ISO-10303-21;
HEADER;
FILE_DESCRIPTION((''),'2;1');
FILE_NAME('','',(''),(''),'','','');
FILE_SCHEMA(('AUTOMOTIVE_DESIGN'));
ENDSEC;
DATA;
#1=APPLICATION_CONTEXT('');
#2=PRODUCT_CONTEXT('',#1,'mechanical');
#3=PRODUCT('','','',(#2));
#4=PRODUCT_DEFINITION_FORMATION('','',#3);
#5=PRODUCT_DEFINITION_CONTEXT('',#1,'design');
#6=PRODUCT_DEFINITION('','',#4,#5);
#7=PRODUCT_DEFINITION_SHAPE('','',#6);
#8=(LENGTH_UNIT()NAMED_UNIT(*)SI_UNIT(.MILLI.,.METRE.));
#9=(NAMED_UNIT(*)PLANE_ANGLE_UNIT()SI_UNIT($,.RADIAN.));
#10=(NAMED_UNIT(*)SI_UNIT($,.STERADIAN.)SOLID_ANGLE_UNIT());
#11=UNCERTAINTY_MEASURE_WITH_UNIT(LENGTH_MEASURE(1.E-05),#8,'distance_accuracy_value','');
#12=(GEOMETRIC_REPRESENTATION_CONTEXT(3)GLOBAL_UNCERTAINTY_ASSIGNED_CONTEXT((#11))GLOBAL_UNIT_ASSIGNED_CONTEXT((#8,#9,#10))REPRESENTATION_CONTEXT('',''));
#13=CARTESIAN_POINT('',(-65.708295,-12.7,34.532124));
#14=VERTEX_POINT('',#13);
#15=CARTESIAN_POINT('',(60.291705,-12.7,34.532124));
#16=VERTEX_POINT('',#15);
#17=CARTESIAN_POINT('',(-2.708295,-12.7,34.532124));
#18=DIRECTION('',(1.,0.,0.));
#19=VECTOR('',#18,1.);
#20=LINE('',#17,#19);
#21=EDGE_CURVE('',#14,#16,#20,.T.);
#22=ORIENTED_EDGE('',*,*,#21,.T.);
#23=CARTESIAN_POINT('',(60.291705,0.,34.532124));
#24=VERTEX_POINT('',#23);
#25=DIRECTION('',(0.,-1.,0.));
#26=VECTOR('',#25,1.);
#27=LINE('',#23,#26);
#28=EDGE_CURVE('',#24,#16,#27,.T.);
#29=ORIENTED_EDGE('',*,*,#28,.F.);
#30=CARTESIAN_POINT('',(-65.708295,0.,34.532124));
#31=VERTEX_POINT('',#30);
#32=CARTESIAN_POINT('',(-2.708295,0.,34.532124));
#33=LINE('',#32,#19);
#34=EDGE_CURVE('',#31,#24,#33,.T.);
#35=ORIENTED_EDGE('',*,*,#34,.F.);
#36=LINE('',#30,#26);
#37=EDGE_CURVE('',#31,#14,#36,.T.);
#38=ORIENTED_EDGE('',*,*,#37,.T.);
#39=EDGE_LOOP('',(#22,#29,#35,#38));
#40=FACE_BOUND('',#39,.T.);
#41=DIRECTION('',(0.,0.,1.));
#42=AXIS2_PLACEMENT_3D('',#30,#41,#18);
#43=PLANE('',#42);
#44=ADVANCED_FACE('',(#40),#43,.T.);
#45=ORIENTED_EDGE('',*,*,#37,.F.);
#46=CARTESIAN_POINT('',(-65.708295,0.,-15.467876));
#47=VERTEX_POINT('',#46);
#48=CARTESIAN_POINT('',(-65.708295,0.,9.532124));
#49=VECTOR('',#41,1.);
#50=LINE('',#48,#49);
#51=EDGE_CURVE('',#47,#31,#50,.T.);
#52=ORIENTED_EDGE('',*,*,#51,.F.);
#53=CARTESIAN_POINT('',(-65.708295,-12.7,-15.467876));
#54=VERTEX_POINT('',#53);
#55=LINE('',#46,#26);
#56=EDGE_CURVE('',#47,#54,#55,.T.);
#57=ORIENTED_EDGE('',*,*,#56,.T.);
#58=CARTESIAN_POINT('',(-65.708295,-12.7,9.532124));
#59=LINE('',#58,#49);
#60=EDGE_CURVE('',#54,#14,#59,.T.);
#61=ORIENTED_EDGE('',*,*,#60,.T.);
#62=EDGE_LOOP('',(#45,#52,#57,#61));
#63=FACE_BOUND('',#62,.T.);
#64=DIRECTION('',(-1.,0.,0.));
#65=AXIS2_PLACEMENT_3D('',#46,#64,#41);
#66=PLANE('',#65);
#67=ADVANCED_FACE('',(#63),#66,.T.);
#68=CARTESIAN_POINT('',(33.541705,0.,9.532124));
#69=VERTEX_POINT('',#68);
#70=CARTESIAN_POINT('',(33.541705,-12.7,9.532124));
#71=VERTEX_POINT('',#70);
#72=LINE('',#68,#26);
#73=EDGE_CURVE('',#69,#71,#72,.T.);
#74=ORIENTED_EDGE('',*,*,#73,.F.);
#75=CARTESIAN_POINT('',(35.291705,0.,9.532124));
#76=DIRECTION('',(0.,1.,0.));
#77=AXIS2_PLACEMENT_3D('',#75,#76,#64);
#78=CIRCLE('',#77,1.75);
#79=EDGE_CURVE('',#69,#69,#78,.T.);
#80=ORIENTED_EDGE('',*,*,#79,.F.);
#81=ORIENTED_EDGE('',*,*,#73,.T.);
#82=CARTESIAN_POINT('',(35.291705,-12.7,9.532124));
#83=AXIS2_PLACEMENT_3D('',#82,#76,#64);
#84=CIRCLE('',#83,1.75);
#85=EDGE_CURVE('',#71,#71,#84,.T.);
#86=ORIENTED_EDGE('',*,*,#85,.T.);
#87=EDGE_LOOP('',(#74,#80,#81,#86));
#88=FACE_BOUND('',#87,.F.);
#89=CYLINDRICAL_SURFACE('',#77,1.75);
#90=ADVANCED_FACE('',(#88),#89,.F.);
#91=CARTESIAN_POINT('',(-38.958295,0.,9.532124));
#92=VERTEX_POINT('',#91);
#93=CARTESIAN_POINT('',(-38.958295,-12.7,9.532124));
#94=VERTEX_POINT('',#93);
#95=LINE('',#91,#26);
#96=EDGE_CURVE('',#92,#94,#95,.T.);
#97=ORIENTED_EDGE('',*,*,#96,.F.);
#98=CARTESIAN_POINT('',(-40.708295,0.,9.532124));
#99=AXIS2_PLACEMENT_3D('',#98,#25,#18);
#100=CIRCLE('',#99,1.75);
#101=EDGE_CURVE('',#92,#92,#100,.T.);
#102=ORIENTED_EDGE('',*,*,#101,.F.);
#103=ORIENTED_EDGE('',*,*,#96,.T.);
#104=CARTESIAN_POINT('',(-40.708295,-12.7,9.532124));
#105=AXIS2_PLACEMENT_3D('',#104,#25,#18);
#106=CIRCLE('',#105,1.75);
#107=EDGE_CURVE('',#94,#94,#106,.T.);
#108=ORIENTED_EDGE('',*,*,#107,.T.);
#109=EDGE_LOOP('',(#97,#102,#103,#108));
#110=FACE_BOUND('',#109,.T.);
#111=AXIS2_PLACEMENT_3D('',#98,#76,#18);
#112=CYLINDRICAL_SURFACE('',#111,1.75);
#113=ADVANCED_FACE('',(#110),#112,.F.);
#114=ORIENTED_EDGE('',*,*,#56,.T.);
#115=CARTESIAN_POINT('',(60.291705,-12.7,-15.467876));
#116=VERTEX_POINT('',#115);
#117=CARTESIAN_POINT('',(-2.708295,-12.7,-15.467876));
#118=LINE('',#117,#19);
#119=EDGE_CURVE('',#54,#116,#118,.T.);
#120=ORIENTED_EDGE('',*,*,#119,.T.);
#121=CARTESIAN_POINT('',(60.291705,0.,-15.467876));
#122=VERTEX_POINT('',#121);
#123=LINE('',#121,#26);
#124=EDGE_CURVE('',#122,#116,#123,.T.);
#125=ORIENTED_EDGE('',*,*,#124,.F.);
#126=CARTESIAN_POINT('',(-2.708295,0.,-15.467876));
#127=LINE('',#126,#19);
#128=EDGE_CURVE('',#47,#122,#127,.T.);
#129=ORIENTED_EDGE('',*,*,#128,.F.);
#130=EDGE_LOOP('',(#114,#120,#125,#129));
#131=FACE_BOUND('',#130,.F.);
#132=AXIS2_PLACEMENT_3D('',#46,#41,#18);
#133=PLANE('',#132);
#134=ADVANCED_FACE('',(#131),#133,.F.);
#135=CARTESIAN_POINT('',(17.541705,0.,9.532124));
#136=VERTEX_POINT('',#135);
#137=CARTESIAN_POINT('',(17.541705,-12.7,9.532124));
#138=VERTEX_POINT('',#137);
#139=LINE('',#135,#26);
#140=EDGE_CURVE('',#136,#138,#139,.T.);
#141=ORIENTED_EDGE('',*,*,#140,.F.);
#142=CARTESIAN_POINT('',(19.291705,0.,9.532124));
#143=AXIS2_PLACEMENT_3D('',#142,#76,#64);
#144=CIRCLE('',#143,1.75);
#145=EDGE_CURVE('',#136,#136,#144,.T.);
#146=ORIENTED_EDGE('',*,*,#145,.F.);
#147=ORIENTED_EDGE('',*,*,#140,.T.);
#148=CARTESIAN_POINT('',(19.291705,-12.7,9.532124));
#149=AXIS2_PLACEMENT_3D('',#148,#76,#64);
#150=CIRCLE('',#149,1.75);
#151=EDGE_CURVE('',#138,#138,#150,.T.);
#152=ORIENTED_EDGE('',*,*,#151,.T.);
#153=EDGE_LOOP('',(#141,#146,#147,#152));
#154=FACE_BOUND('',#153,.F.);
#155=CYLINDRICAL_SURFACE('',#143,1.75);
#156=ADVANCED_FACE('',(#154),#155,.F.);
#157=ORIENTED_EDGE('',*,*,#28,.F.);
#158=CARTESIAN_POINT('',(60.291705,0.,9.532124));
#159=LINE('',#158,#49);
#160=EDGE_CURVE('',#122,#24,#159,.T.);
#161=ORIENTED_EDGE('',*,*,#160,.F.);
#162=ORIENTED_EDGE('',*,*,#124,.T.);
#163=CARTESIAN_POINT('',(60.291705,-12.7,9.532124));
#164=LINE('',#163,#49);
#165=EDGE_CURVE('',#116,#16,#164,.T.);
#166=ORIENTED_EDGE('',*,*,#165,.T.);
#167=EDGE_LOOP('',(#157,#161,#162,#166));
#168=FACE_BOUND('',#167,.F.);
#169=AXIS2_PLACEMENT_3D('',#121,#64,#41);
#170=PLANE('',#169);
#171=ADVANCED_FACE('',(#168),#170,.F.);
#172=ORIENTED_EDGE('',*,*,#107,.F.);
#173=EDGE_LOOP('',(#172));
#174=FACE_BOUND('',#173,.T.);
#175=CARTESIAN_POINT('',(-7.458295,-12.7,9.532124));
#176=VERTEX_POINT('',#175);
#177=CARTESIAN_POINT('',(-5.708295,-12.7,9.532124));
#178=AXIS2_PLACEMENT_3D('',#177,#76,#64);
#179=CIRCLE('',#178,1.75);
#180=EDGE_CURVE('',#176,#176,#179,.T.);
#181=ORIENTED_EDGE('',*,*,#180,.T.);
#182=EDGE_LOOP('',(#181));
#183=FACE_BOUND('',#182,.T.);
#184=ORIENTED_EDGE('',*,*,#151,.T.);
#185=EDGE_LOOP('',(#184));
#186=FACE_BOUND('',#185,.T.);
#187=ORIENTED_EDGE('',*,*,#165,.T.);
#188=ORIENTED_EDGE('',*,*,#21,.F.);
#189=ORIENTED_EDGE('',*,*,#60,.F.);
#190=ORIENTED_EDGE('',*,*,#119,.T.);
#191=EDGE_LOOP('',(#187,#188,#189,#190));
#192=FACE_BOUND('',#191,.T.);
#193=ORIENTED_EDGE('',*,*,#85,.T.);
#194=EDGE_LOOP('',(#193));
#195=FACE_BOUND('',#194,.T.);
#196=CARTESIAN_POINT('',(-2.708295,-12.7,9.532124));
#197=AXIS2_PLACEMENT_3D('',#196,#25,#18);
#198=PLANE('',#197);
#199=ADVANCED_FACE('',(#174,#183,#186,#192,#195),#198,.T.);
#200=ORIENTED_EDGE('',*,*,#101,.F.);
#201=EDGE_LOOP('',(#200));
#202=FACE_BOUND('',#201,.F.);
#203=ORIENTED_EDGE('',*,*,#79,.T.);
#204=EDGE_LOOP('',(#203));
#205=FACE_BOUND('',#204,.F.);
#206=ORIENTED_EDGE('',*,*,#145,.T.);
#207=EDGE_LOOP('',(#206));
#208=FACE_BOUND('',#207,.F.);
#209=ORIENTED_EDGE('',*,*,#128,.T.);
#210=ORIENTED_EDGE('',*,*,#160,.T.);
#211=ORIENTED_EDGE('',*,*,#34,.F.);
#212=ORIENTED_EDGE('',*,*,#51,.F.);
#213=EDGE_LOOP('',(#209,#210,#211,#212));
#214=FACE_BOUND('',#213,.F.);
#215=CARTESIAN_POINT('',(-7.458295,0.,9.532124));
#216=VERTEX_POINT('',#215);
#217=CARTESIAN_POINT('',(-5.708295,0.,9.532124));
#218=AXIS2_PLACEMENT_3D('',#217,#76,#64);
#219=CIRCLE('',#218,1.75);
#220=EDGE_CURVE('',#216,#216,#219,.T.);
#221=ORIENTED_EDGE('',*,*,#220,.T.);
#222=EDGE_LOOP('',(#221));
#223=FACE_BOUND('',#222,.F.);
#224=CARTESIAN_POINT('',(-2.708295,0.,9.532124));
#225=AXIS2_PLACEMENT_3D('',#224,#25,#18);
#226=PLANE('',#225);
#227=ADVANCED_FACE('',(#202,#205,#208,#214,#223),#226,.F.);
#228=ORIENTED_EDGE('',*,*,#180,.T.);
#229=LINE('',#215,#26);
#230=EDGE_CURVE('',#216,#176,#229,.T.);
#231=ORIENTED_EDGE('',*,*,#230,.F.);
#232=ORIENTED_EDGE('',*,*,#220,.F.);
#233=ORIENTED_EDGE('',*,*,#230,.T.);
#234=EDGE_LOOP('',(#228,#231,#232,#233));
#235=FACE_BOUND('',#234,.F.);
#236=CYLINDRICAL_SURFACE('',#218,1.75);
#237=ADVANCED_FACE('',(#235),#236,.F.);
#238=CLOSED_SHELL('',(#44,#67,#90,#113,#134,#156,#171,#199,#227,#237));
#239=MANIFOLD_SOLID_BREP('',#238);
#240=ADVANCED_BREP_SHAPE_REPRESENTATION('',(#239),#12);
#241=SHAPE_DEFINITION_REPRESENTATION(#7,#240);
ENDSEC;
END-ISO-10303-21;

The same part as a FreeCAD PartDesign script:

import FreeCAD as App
import Part
import Sketcher

V = App.Vector


def add_polygon(sketch, points):
    """Adds a closed chain of lines whose ends are joined by coincident constraints."""
    first, n = sketch.GeometryCount, len(points)
    for a, b in zip(points, points[1:] + points[:1]):
        sketch.addGeometry(Part.LineSegment(App.Vector(*a, 0), App.Vector(*b, 0)), False)
    for i in range(n):
        sketch.addConstraint(Sketcher.Constraint("Coincident", first + i, 2, first + (i + 1) % n, 1))

doc = App.newDocument("Part")
body = doc.addObject("PartDesign::Body", "Body")

sketch1 = body.newObject("Sketcher::SketchObject", "Sketch")
sketch1.AttachmentSupport = (doc.getObject("XZ_Plane"), [""])
sketch1.MapMode = "FlatFace"
add_polygon(sketch1, [(-65.708295, 34.532124), (-65.708295, -15.467876), (60.291705, -15.467876), (60.291705, 34.532124)])
sketch1.addGeometry(Part.Circle(V(-40.708295, 9.532124, 0), V(0, 0, 1), 1.75), False)
sketch1.addGeometry(Part.Circle(V(-5.708295, 9.532124, 0), V(0, 0, 1), 1.75), False)
sketch1.addGeometry(Part.Circle(V(19.291705, 9.532124, 0), V(0, 0, 1), 1.75), False)
sketch1.addGeometry(Part.Circle(V(35.291705, 9.532124, 0), V(0, 0, 1), 1.75), False)
sketch1.addConstraint([
    Sketcher.Constraint("Vertical", 0),
    Sketcher.Constraint("Horizontal", 1),
    Sketcher.Constraint("Vertical", 2),
    Sketcher.Constraint("Horizontal", 3),
    Sketcher.Constraint("Equal", 4, 5),
    Sketcher.Constraint("Equal", 5, 6),
    Sketcher.Constraint("Equal", 6, 7),
    Sketcher.Constraint("Horizontal", 4, 3, 5, 3),
    Sketcher.Constraint("Horizontal", 5, 3, 6, 3),
    Sketcher.Constraint("Horizontal", 6, 3, 7, 3),
    Sketcher.Constraint("Diameter", 4, 3.5),
    Sketcher.Constraint("DistanceX", 1, 1, 1, 2, 126.0),
    Sketcher.Constraint("DistanceY", 0, 2, 0, 1, 50.0),
    Sketcher.Constraint("DistanceX", 4, 3, 5, 3, 35.0),
    Sketcher.Constraint("DistanceX", 5, 3, 6, 3, 25.0),
    Sketcher.Constraint("DistanceX", 6, 3, 7, 3, 16.0),
    Sketcher.Constraint("DistanceX", 0, 2, 4, 3, 25.0),
    Sketcher.Constraint("DistanceY", 0, 2, 4, 3, 25.0),
    Sketcher.Constraint("DistanceX", 4, 3, -1, 1, 40.708295),
    Sketcher.Constraint("DistanceY", -1, 1, 4, 3, 9.532124),
])
pad1 = body.newObject("PartDesign::Pad", "Pad")
pad1.Profile = sketch1
pad1.Length = 12.7

doc.recompute()
